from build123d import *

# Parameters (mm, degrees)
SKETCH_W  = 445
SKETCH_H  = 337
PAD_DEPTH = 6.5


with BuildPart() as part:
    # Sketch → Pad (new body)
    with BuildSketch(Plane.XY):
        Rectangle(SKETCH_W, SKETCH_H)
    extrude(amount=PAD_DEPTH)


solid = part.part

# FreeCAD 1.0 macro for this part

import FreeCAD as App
import Part
import Sketcher

V = App.Vector
Q = App.Units.Quantity

doc = App.newDocument("Part")
params = doc.addObject("Spreadsheet::Sheet", "Params")
for row, (alias, value) in enumerate([
    ("sketch1_width", "445 mm"),
    ("sketch1_height", "337 mm"),
    ("pad1_length", "6.5 mm"),
], start=1):
    params.set(f"A{row}", alias)
    params.set(f"B{row}", "=" + value)
    params.setAlias(f"B{row}", alias)

body = doc.addObject("PartDesign::Body", "Body")

sketch1 = body.newObject("Sketcher::SketchObject", "Sketch")
sketch1.AttachmentSupport = (doc.getObject("XY_Plane"), [""])
sketch1.MapMode = "FlatFace"
sketch1.addGeometry([
    Part.LineSegment(V(-222, 168, 0), V(-222, -168, 0)),
    Part.LineSegment(V(-222, -168, 0), V(222, -168, 0)),
    Part.LineSegment(V(222, -168, 0), V(222, 168, 0)),
    Part.LineSegment(V(222, 168, 0), V(-222, 168, 0)),
], False)
sketch1.addConstraint([
    Sketcher.Constraint("Coincident", 0, 2, 1, 1),
    Sketcher.Constraint("Coincident", 1, 2, 2, 1),
    Sketcher.Constraint("Coincident", 2, 2, 3, 1),
    Sketcher.Constraint("Coincident", 3, 2, 0, 1),
    Sketcher.Constraint("Vertical", 0),
    Sketcher.Constraint("Horizontal", 1),
    Sketcher.Constraint("Vertical", 2),
    Sketcher.Constraint("Horizontal", 3),
    Sketcher.Constraint("Symmetric", 0, 2, 2, 2, -1, 1),
    Sketcher.Constraint("DistanceX", 1, 1, 1, 2, Q("445 mm")),
    Sketcher.Constraint("DistanceY", 0, 2, 0, 1, Q("337 mm")),
])
sketch1.setExpression("Constraints[9]", "Params.sketch1_width")
sketch1.setExpression("Constraints[10]", "Params.sketch1_height")
pad1 = body.newObject("PartDesign::Pad", "Pad")
pad1.Profile = sketch1
pad1.setExpression("Length", "Params.pad1_length")

doc.recompute()
